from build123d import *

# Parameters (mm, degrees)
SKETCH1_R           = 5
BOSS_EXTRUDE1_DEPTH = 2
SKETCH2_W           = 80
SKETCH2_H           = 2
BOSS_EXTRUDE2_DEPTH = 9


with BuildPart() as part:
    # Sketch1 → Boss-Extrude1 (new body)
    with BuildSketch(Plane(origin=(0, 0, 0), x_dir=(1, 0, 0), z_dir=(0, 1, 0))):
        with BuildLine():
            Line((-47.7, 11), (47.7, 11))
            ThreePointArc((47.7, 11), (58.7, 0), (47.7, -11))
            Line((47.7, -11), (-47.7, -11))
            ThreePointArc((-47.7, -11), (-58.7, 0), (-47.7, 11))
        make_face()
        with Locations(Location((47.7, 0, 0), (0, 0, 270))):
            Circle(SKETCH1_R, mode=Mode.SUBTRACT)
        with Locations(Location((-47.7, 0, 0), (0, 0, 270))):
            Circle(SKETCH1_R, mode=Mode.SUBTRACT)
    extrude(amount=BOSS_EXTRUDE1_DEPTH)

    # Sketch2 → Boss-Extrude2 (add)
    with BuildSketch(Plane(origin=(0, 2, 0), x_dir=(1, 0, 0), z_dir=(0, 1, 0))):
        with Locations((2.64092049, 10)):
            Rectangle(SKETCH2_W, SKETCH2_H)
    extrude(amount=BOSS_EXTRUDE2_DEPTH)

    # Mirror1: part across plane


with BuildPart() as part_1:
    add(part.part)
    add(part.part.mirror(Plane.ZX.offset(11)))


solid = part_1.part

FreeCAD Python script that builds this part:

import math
import FreeCAD as App
import Part
import Sketcher

V = App.Vector


def add_polygon(sketch, points):
    """Adds a closed chain of lines whose ends are joined by coincident constraints."""
    first, n = sketch.GeometryCount, len(points)
    for a, b in zip(points, points[1:] + points[:1]):
        sketch.addGeometry(Part.LineSegment(App.Vector(*a, 0), App.Vector(*b, 0)), False)
    for i in range(n):
        sketch.addConstraint(Sketcher.Constraint("Coincident", first + i, 2, first + (i + 1) % n, 1))

doc = App.newDocument("Part")
params = doc.addObject("Spreadsheet::Sheet", "Params")
for row, (alias, value) in enumerate([
    ("sketch1_diameter", "10 mm"),
    ("sketch1_radius", "11 mm"),
    ("sketch1_width", "95.4 mm"),
    ("pad1_length", "2 mm"),
    ("sketch2_width", "80 mm"),
    ("sketch2_height", "2 mm"),
    ("pad2_length", "9 mm"),
], start=1):
    params.set(f"A{row}", alias)
    params.set(f"B{row}", "=" + value)
    params.setAlias(f"B{row}", alias)

body = doc.addObject("PartDesign::Body", "Body")

# Sketch on XZ plane
sketch1 = body.newObject("Sketcher::SketchObject", "Sketch")
sketch1.AttachmentSupport = (doc.getObject("XZ_Plane"), [""])
sketch1.MapMode = "FlatFace"
sketch1.addGeometry([
    Part.LineSegment(V(48, -11, 0), V(-48, -11, 0)),  # 0
    Part.ArcOfCircle(Part.Circle(V(-48, 0, 0), V(0, 0, 1), 11), math.radians(90), math.radians(270)),  # 1
    Part.LineSegment(V(-48, 11, 0), V(48, 11, 0)),  # 2
    Part.ArcOfCircle(Part.Circle(V(48, 0, 0), V(0, 0, 1), 11), math.radians(-90), math.radians(90)),  # 3
    Part.Circle(V(48, 0, 0), V(0, 0, 1), 5),  # 4
    Part.Circle(V(-48, 0, 0), V(0, 0, 1), 5),  # 5
], False)
sketch1.addConstraint([
    Sketcher.Constraint("Tangent", 0, 2, 1, 2),
    Sketcher.Constraint("Tangent", 1, 1, 2, 1),
    Sketcher.Constraint("Tangent", 2, 2, 3, 2),
    Sketcher.Constraint("Tangent", 3, 1, 0, 1),
    Sketcher.Constraint("Horizontal", 0),
    Sketcher.Constraint("Horizontal", 2),
    Sketcher.Constraint("Coincident", 4, 3, 3, 3),
    Sketcher.Constraint("Coincident", 5, 3, 1, 3),
    Sketcher.Constraint("Equal", 4, 5),
    Sketcher.Constraint("Symmetric", 1, 3, 3, 3, -1, 1),
    Sketcher.Constraint("Diameter", 4, 10.0),
    Sketcher.Constraint("Radius", 1, 11.0),
    Sketcher.Constraint("DistanceX", 0, 2, 0, 1, 95.4),
])
sketch1.setExpression("Constraints[10]", "Params.sketch1_diameter")
sketch1.setExpression("Constraints[11]", "Params.sketch1_radius")
sketch1.setExpression("Constraints[12]", "Params.sketch1_width")
pad1 = body.newObject("PartDesign::Pad", "Pad")
pad1.Profile = sketch1
pad1.setExpression("Length", "Params.pad1_length")
pad1.Reversed = True

# Sketch on XZ plane
sketch2 = body.newObject("Sketcher::SketchObject", "Sketch001")
sketch2.AttachmentSupport = (doc.getObject("XZ_Plane"), [""])
sketch2.MapMode = "FlatFace"
sketch2.AttachmentOffset = App.Placement(V(0, 0, -2), App.Rotation())
add_polygon(sketch2, [(-37.4, -11), (-37.4, -9), (42.6, -9), (42.6, -11)])  # lines 0-3
sketch2.addConstraint([
    Sketcher.Constraint("Vertical", 0),
    Sketcher.Constraint("Horizontal", 1),
    Sketcher.Constraint("Vertical", 2),
    Sketcher.Constraint("Horizontal", 3),
    Sketcher.Constraint("DistanceX", 1, 1, 1, 2, 80.0),
    Sketcher.Constraint("DistanceY", 0, 1, 0, 2, 2.0),
    Sketcher.Constraint("DistanceY", 0, 2, -1, 1, 9.0),
    Sketcher.Constraint("DistanceX", 0, 2, -1, 1, 37.35908),
])
sketch2.setExpression("Constraints[8]", "Params.sketch2_width")
sketch2.setExpression("Constraints[9]", "Params.sketch2_height")
pad2 = body.newObject("PartDesign::Pad", "Pad001")
pad2.Profile = sketch2
pad2.setExpression("Length", "Params.pad2_length")
pad2.Reversed = True
body2 = doc.addObject("PartDesign::Body", "Body001")
doc.recompute()

body2.BaseFeature = body
doc.recompute()

mirroring = doc.addObject("Part::Mirroring", "Mirroring")
mirroring.Source = body
mirroring.Base = V(0, 11, 0)
mirroring.Normal = V(0, 1, 0)
body3 = doc.addObject("PartDesign::Body", "Body002")
body3.BaseFeature = mirroring
boolean = body2.newObject("PartDesign::Boolean", "Boolean")
boolean.Type = "Fuse"
boolean.addObjects([body3])
doc.recompute()
mirroring.Visibility = False

doc.recompute()
